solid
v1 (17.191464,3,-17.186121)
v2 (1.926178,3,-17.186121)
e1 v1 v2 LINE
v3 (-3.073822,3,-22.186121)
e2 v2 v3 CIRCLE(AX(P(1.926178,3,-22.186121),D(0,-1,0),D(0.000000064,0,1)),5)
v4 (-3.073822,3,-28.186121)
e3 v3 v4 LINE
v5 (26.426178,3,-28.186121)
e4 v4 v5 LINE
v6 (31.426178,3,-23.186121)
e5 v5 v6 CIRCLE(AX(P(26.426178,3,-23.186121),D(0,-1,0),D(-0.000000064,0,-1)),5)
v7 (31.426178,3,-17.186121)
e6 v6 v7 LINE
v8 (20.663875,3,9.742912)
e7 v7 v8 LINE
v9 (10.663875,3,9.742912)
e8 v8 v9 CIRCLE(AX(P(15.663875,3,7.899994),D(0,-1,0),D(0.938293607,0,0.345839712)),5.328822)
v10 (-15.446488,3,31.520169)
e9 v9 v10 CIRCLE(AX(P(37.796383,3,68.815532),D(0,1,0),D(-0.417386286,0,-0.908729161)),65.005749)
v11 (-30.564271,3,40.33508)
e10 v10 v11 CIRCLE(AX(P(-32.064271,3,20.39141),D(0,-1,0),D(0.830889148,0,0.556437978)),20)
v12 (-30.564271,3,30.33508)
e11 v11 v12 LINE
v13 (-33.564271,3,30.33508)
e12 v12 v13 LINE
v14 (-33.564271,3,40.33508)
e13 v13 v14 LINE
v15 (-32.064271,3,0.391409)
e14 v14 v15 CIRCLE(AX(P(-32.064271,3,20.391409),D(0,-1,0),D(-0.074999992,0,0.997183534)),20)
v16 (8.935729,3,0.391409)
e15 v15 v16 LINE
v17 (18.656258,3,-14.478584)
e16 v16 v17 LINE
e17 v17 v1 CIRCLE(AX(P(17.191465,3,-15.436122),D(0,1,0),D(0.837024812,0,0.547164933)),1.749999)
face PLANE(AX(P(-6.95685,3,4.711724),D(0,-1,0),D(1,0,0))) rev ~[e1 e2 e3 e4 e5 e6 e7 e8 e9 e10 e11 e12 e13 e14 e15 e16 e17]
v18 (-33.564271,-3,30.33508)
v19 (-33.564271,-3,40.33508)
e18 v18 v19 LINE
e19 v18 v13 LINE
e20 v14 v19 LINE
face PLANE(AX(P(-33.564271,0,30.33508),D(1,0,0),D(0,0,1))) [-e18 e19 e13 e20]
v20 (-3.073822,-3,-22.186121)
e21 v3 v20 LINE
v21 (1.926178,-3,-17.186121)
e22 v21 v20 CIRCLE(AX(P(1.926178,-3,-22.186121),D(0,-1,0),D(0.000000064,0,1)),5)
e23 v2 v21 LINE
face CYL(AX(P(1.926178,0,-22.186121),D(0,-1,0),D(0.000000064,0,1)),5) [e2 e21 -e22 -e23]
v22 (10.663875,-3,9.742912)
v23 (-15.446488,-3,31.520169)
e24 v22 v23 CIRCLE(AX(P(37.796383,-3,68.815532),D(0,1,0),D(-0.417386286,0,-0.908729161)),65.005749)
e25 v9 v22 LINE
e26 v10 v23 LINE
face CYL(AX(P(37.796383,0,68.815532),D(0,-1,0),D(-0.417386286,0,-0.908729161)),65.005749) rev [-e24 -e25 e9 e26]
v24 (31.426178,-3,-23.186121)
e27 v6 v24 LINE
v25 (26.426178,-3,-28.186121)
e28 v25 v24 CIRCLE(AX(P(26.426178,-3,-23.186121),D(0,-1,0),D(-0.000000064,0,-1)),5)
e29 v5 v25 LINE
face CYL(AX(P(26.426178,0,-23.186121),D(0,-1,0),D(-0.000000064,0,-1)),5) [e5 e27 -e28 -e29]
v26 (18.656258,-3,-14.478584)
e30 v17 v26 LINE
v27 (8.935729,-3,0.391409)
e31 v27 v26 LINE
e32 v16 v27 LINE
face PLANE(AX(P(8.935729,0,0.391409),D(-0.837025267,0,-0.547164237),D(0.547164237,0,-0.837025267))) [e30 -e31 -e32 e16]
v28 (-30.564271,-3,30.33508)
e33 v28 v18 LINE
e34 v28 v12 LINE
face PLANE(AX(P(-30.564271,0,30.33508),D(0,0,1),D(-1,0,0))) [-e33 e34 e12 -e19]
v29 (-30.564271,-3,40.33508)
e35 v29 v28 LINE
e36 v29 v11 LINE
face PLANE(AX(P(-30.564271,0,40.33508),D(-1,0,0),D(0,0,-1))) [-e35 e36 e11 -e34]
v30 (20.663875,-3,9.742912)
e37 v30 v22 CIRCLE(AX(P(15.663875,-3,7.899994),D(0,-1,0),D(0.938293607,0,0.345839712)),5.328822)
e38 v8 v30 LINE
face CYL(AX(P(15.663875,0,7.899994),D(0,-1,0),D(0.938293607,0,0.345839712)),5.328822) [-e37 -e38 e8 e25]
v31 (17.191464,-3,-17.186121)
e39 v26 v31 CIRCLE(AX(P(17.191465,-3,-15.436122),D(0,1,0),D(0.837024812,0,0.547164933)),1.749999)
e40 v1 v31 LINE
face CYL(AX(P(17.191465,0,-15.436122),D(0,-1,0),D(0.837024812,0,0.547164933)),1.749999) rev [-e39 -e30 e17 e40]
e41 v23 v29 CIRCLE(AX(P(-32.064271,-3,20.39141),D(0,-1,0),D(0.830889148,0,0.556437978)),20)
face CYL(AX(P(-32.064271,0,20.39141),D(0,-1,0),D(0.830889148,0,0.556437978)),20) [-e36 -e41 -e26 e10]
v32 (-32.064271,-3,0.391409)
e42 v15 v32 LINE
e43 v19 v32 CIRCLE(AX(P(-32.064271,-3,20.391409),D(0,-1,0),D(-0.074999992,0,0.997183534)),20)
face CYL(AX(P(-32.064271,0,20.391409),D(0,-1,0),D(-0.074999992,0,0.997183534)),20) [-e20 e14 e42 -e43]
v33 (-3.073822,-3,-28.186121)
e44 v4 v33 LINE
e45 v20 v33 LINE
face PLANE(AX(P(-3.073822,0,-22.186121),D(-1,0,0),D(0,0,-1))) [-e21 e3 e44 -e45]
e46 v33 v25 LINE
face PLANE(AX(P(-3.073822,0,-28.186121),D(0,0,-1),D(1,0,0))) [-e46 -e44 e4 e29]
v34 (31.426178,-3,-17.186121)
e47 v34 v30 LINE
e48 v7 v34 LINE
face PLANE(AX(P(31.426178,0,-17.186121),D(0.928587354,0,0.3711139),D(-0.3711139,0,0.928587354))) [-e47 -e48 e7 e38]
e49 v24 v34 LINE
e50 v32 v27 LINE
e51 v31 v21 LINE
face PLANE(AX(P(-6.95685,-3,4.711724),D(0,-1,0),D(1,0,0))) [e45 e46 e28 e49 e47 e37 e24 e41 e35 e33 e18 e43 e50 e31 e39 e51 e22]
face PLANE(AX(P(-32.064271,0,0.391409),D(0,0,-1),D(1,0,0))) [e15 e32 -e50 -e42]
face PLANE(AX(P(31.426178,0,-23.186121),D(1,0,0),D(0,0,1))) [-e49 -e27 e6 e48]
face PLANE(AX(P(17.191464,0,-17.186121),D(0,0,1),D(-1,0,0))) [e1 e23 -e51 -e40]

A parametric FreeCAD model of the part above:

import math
import FreeCAD as App
import Part
import Sketcher

V = App.Vector
Q = App.Units.Quantity

doc = App.newDocument("Part")
body = doc.addObject("PartDesign::Body", "Body")

sketch1 = body.newObject("Sketcher::SketchObject", "Sketch")
sketch1.AttachmentSupport = (doc.getObject("XZ_Plane"), [""])
sketch1.MapMode = "FlatFace"
sketch1.addGeometry([
    Part.LineSegment(V(-33.6, 30.3, 0), V(-33.6, 40.3, 0)),
    Part.ArcOfCircle(Part.Circle(V(-32.1, 20.4, 0), V(0, 0, 1), 20), math.radians(94), math.radians(270)),
    Part.LineSegment(V(-32.1, 0.4, 0), V(8.9, 0.4, 0)),
    Part.LineSegment(V(8.9, 0.4, 0), V(18.7, -14.5, 0)),
    Part.ArcOfCircle(Part.Circle(V(17.2, -15.4, 0), V(0, 0, 1), 1.7), math.radians(-90), math.radians(33)),
    Part.LineSegment(V(17.2, -17.2, 0), V(1.9, -17.2, 0)),
    Part.ArcOfCircle(Part.Circle(V(1.9, -22.2, 0), V(0, 0, 1), 5), math.radians(90), math.radians(180)),
    Part.LineSegment(V(-3.1, -22.2, 0), V(-3.1, -28.2, 0)),
    Part.LineSegment(V(-3.1, -28.2, 0), V(26.4, -28.2, 0)),
    Part.ArcOfCircle(Part.Circle(V(26.4, -23.2, 0), V(0, 0, 1), 5), math.radians(-90), math.radians(0)),
    Part.LineSegment(V(31.4, -23.2, 0), V(31.4, -17.2, 0)),
    Part.LineSegment(V(31.4, -17.2, 0), V(20.7, 9.7, 0)),
    Part.ArcOfCircle(Part.Circle(V(15.7, 7.9, 0), V(0, 0, 1), 5.3), math.radians(20), math.radians(160)),
    Part.ArcOfCircle(Part.Circle(V(37.8, 68.8, 0), V(0, 0, 1), 65), math.radians(-145), math.radians(-115)),
    Part.ArcOfCircle(Part.Circle(V(-32.1, 20.4, 0), V(0, 0, 1), 20), math.radians(34), math.radians(86)),
    Part.LineSegment(V(-30.6, 40.3, 0), V(-30.6, 30.3, 0)),
    Part.LineSegment(V(-30.6, 30.3, 0), V(-33.6, 30.3, 0)),
], False)
sketch1.addConstraint([
    Sketcher.Constraint("Coincident", 0, 2, 1, 1),
    Sketcher.Constraint("Tangent", 1, 2, 2, 1),
    Sketcher.Constraint("Coincident", 2, 2, 3, 1),
    Sketcher.Constraint("Tangent", 3, 2, 4, 2),
    Sketcher.Constraint("Tangent", 4, 1, 5, 1),
    Sketcher.Constraint("Tangent", 5, 2, 6, 1),
    Sketcher.Constraint("Tangent", 6, 2, 7, 1),
    Sketcher.Constraint("Coincident", 7, 2, 8, 1),
    Sketcher.Constraint("Tangent", 8, 2, 9, 1),
    Sketcher.Constraint("Tangent", 9, 2, 10, 1),
    Sketcher.Constraint("Coincident", 10, 2, 11, 1),
    Sketcher.Constraint("Coincident", 11, 2, 12, 1),
    Sketcher.Constraint("Coincident", 12, 2, 13, 2),
    Sketcher.Constraint("Coincident", 13, 1, 14, 1),
    Sketcher.Constraint("Coincident", 14, 2, 15, 1),
    Sketcher.Constraint("Coincident", 15, 2, 16, 1),
    Sketcher.Constraint("Coincident", 16, 2, 0, 1),
    Sketcher.Constraint("Vertical", 0),
    Sketcher.Constraint("Horizontal", 2),
    Sketcher.Constraint("Horizontal", 5),
    Sketcher.Constraint("Vertical", 7),
    Sketcher.Constraint("Horizontal", 8),
    Sketcher.Constraint("Vertical", 10),
    Sketcher.Constraint("Vertical", 15),
    Sketcher.Constraint("Horizontal", 16),
    Sketcher.Constraint("Coincident", 14, 3, 1, 3),
    Sketcher.Constraint("Equal", 6, 9),
    Sketcher.Constraint("Equal", 1, 14),
    Sketcher.Constraint("Horizontal", 5, 2, 10, 2),
    Sketcher.Constraint("Horizontal", 11, 2, 12, 2),
    Sketcher.Constraint("Horizontal", 0, 2, 14, 2),
    Sketcher.Constraint("Radius", 1, Q("20 mm")),
    Sketcher.Constraint("Radius", 6, Q("5 mm")),
    Sketcher.Constraint("DistanceX", 2, 1, 2, 2, Q("41 mm")),
    Sketcher.Constraint("DistanceX", 16, 2, 16, 1, Q("3 mm")),
    Sketcher.Constraint("DistanceY", 0, 1, 0, 2, Q("10 mm")),
    Sketcher.Constraint("DistanceY", 7, 2, 7, 1, Q("6 mm")),
    Sketcher.Constraint("Radius", 4, Q("1.749999 mm")),
    Sketcher.Constraint("Distance", 11, Q("29 mm")),
    Sketcher.Constraint("DistanceX", 8, 1, 8, 2, Q("29.5 mm")),
    Sketcher.Constraint("DistanceX", 12, 3, 11, 2, Q("5 mm")),
    Sketcher.Constraint("Radius", 13, Q("65.005749 mm")),
    Sketcher.Constraint("Radius", 12, Q("5.328822 mm")),
    Sketcher.Constraint("DistanceY", 6, 3, 0, 2, Q("62.521201 mm")),
    Sketcher.Constraint("DistanceX", 5, 2, 5, 1, Q("15.265286 mm")),
    Sketcher.Constraint("DistanceX", 1, 3, -1, 1, Q("32.064271 mm")),
    Sketcher.Constraint("DistanceY", -1, 1, 1, 3, Q("20.391409 mm")),
    Sketcher.Constraint("DistanceX", -1, 1, 9, 3, Q("26.426178 mm")),
    Sketcher.Constraint("DistanceY", -1, 1, 12, 2, Q("9.742912 mm")),
    Sketcher.Constraint("DistanceY", -1, 1, 13, 1, Q("31.520169 mm")),
])
pad1 = body.newObject("PartDesign::Pad", "Pad")
pad1.Profile = sketch1
pad1.Type = "TwoLengths"
pad1.Length = 3
pad1.Length2 = 3

doc.recompute()
